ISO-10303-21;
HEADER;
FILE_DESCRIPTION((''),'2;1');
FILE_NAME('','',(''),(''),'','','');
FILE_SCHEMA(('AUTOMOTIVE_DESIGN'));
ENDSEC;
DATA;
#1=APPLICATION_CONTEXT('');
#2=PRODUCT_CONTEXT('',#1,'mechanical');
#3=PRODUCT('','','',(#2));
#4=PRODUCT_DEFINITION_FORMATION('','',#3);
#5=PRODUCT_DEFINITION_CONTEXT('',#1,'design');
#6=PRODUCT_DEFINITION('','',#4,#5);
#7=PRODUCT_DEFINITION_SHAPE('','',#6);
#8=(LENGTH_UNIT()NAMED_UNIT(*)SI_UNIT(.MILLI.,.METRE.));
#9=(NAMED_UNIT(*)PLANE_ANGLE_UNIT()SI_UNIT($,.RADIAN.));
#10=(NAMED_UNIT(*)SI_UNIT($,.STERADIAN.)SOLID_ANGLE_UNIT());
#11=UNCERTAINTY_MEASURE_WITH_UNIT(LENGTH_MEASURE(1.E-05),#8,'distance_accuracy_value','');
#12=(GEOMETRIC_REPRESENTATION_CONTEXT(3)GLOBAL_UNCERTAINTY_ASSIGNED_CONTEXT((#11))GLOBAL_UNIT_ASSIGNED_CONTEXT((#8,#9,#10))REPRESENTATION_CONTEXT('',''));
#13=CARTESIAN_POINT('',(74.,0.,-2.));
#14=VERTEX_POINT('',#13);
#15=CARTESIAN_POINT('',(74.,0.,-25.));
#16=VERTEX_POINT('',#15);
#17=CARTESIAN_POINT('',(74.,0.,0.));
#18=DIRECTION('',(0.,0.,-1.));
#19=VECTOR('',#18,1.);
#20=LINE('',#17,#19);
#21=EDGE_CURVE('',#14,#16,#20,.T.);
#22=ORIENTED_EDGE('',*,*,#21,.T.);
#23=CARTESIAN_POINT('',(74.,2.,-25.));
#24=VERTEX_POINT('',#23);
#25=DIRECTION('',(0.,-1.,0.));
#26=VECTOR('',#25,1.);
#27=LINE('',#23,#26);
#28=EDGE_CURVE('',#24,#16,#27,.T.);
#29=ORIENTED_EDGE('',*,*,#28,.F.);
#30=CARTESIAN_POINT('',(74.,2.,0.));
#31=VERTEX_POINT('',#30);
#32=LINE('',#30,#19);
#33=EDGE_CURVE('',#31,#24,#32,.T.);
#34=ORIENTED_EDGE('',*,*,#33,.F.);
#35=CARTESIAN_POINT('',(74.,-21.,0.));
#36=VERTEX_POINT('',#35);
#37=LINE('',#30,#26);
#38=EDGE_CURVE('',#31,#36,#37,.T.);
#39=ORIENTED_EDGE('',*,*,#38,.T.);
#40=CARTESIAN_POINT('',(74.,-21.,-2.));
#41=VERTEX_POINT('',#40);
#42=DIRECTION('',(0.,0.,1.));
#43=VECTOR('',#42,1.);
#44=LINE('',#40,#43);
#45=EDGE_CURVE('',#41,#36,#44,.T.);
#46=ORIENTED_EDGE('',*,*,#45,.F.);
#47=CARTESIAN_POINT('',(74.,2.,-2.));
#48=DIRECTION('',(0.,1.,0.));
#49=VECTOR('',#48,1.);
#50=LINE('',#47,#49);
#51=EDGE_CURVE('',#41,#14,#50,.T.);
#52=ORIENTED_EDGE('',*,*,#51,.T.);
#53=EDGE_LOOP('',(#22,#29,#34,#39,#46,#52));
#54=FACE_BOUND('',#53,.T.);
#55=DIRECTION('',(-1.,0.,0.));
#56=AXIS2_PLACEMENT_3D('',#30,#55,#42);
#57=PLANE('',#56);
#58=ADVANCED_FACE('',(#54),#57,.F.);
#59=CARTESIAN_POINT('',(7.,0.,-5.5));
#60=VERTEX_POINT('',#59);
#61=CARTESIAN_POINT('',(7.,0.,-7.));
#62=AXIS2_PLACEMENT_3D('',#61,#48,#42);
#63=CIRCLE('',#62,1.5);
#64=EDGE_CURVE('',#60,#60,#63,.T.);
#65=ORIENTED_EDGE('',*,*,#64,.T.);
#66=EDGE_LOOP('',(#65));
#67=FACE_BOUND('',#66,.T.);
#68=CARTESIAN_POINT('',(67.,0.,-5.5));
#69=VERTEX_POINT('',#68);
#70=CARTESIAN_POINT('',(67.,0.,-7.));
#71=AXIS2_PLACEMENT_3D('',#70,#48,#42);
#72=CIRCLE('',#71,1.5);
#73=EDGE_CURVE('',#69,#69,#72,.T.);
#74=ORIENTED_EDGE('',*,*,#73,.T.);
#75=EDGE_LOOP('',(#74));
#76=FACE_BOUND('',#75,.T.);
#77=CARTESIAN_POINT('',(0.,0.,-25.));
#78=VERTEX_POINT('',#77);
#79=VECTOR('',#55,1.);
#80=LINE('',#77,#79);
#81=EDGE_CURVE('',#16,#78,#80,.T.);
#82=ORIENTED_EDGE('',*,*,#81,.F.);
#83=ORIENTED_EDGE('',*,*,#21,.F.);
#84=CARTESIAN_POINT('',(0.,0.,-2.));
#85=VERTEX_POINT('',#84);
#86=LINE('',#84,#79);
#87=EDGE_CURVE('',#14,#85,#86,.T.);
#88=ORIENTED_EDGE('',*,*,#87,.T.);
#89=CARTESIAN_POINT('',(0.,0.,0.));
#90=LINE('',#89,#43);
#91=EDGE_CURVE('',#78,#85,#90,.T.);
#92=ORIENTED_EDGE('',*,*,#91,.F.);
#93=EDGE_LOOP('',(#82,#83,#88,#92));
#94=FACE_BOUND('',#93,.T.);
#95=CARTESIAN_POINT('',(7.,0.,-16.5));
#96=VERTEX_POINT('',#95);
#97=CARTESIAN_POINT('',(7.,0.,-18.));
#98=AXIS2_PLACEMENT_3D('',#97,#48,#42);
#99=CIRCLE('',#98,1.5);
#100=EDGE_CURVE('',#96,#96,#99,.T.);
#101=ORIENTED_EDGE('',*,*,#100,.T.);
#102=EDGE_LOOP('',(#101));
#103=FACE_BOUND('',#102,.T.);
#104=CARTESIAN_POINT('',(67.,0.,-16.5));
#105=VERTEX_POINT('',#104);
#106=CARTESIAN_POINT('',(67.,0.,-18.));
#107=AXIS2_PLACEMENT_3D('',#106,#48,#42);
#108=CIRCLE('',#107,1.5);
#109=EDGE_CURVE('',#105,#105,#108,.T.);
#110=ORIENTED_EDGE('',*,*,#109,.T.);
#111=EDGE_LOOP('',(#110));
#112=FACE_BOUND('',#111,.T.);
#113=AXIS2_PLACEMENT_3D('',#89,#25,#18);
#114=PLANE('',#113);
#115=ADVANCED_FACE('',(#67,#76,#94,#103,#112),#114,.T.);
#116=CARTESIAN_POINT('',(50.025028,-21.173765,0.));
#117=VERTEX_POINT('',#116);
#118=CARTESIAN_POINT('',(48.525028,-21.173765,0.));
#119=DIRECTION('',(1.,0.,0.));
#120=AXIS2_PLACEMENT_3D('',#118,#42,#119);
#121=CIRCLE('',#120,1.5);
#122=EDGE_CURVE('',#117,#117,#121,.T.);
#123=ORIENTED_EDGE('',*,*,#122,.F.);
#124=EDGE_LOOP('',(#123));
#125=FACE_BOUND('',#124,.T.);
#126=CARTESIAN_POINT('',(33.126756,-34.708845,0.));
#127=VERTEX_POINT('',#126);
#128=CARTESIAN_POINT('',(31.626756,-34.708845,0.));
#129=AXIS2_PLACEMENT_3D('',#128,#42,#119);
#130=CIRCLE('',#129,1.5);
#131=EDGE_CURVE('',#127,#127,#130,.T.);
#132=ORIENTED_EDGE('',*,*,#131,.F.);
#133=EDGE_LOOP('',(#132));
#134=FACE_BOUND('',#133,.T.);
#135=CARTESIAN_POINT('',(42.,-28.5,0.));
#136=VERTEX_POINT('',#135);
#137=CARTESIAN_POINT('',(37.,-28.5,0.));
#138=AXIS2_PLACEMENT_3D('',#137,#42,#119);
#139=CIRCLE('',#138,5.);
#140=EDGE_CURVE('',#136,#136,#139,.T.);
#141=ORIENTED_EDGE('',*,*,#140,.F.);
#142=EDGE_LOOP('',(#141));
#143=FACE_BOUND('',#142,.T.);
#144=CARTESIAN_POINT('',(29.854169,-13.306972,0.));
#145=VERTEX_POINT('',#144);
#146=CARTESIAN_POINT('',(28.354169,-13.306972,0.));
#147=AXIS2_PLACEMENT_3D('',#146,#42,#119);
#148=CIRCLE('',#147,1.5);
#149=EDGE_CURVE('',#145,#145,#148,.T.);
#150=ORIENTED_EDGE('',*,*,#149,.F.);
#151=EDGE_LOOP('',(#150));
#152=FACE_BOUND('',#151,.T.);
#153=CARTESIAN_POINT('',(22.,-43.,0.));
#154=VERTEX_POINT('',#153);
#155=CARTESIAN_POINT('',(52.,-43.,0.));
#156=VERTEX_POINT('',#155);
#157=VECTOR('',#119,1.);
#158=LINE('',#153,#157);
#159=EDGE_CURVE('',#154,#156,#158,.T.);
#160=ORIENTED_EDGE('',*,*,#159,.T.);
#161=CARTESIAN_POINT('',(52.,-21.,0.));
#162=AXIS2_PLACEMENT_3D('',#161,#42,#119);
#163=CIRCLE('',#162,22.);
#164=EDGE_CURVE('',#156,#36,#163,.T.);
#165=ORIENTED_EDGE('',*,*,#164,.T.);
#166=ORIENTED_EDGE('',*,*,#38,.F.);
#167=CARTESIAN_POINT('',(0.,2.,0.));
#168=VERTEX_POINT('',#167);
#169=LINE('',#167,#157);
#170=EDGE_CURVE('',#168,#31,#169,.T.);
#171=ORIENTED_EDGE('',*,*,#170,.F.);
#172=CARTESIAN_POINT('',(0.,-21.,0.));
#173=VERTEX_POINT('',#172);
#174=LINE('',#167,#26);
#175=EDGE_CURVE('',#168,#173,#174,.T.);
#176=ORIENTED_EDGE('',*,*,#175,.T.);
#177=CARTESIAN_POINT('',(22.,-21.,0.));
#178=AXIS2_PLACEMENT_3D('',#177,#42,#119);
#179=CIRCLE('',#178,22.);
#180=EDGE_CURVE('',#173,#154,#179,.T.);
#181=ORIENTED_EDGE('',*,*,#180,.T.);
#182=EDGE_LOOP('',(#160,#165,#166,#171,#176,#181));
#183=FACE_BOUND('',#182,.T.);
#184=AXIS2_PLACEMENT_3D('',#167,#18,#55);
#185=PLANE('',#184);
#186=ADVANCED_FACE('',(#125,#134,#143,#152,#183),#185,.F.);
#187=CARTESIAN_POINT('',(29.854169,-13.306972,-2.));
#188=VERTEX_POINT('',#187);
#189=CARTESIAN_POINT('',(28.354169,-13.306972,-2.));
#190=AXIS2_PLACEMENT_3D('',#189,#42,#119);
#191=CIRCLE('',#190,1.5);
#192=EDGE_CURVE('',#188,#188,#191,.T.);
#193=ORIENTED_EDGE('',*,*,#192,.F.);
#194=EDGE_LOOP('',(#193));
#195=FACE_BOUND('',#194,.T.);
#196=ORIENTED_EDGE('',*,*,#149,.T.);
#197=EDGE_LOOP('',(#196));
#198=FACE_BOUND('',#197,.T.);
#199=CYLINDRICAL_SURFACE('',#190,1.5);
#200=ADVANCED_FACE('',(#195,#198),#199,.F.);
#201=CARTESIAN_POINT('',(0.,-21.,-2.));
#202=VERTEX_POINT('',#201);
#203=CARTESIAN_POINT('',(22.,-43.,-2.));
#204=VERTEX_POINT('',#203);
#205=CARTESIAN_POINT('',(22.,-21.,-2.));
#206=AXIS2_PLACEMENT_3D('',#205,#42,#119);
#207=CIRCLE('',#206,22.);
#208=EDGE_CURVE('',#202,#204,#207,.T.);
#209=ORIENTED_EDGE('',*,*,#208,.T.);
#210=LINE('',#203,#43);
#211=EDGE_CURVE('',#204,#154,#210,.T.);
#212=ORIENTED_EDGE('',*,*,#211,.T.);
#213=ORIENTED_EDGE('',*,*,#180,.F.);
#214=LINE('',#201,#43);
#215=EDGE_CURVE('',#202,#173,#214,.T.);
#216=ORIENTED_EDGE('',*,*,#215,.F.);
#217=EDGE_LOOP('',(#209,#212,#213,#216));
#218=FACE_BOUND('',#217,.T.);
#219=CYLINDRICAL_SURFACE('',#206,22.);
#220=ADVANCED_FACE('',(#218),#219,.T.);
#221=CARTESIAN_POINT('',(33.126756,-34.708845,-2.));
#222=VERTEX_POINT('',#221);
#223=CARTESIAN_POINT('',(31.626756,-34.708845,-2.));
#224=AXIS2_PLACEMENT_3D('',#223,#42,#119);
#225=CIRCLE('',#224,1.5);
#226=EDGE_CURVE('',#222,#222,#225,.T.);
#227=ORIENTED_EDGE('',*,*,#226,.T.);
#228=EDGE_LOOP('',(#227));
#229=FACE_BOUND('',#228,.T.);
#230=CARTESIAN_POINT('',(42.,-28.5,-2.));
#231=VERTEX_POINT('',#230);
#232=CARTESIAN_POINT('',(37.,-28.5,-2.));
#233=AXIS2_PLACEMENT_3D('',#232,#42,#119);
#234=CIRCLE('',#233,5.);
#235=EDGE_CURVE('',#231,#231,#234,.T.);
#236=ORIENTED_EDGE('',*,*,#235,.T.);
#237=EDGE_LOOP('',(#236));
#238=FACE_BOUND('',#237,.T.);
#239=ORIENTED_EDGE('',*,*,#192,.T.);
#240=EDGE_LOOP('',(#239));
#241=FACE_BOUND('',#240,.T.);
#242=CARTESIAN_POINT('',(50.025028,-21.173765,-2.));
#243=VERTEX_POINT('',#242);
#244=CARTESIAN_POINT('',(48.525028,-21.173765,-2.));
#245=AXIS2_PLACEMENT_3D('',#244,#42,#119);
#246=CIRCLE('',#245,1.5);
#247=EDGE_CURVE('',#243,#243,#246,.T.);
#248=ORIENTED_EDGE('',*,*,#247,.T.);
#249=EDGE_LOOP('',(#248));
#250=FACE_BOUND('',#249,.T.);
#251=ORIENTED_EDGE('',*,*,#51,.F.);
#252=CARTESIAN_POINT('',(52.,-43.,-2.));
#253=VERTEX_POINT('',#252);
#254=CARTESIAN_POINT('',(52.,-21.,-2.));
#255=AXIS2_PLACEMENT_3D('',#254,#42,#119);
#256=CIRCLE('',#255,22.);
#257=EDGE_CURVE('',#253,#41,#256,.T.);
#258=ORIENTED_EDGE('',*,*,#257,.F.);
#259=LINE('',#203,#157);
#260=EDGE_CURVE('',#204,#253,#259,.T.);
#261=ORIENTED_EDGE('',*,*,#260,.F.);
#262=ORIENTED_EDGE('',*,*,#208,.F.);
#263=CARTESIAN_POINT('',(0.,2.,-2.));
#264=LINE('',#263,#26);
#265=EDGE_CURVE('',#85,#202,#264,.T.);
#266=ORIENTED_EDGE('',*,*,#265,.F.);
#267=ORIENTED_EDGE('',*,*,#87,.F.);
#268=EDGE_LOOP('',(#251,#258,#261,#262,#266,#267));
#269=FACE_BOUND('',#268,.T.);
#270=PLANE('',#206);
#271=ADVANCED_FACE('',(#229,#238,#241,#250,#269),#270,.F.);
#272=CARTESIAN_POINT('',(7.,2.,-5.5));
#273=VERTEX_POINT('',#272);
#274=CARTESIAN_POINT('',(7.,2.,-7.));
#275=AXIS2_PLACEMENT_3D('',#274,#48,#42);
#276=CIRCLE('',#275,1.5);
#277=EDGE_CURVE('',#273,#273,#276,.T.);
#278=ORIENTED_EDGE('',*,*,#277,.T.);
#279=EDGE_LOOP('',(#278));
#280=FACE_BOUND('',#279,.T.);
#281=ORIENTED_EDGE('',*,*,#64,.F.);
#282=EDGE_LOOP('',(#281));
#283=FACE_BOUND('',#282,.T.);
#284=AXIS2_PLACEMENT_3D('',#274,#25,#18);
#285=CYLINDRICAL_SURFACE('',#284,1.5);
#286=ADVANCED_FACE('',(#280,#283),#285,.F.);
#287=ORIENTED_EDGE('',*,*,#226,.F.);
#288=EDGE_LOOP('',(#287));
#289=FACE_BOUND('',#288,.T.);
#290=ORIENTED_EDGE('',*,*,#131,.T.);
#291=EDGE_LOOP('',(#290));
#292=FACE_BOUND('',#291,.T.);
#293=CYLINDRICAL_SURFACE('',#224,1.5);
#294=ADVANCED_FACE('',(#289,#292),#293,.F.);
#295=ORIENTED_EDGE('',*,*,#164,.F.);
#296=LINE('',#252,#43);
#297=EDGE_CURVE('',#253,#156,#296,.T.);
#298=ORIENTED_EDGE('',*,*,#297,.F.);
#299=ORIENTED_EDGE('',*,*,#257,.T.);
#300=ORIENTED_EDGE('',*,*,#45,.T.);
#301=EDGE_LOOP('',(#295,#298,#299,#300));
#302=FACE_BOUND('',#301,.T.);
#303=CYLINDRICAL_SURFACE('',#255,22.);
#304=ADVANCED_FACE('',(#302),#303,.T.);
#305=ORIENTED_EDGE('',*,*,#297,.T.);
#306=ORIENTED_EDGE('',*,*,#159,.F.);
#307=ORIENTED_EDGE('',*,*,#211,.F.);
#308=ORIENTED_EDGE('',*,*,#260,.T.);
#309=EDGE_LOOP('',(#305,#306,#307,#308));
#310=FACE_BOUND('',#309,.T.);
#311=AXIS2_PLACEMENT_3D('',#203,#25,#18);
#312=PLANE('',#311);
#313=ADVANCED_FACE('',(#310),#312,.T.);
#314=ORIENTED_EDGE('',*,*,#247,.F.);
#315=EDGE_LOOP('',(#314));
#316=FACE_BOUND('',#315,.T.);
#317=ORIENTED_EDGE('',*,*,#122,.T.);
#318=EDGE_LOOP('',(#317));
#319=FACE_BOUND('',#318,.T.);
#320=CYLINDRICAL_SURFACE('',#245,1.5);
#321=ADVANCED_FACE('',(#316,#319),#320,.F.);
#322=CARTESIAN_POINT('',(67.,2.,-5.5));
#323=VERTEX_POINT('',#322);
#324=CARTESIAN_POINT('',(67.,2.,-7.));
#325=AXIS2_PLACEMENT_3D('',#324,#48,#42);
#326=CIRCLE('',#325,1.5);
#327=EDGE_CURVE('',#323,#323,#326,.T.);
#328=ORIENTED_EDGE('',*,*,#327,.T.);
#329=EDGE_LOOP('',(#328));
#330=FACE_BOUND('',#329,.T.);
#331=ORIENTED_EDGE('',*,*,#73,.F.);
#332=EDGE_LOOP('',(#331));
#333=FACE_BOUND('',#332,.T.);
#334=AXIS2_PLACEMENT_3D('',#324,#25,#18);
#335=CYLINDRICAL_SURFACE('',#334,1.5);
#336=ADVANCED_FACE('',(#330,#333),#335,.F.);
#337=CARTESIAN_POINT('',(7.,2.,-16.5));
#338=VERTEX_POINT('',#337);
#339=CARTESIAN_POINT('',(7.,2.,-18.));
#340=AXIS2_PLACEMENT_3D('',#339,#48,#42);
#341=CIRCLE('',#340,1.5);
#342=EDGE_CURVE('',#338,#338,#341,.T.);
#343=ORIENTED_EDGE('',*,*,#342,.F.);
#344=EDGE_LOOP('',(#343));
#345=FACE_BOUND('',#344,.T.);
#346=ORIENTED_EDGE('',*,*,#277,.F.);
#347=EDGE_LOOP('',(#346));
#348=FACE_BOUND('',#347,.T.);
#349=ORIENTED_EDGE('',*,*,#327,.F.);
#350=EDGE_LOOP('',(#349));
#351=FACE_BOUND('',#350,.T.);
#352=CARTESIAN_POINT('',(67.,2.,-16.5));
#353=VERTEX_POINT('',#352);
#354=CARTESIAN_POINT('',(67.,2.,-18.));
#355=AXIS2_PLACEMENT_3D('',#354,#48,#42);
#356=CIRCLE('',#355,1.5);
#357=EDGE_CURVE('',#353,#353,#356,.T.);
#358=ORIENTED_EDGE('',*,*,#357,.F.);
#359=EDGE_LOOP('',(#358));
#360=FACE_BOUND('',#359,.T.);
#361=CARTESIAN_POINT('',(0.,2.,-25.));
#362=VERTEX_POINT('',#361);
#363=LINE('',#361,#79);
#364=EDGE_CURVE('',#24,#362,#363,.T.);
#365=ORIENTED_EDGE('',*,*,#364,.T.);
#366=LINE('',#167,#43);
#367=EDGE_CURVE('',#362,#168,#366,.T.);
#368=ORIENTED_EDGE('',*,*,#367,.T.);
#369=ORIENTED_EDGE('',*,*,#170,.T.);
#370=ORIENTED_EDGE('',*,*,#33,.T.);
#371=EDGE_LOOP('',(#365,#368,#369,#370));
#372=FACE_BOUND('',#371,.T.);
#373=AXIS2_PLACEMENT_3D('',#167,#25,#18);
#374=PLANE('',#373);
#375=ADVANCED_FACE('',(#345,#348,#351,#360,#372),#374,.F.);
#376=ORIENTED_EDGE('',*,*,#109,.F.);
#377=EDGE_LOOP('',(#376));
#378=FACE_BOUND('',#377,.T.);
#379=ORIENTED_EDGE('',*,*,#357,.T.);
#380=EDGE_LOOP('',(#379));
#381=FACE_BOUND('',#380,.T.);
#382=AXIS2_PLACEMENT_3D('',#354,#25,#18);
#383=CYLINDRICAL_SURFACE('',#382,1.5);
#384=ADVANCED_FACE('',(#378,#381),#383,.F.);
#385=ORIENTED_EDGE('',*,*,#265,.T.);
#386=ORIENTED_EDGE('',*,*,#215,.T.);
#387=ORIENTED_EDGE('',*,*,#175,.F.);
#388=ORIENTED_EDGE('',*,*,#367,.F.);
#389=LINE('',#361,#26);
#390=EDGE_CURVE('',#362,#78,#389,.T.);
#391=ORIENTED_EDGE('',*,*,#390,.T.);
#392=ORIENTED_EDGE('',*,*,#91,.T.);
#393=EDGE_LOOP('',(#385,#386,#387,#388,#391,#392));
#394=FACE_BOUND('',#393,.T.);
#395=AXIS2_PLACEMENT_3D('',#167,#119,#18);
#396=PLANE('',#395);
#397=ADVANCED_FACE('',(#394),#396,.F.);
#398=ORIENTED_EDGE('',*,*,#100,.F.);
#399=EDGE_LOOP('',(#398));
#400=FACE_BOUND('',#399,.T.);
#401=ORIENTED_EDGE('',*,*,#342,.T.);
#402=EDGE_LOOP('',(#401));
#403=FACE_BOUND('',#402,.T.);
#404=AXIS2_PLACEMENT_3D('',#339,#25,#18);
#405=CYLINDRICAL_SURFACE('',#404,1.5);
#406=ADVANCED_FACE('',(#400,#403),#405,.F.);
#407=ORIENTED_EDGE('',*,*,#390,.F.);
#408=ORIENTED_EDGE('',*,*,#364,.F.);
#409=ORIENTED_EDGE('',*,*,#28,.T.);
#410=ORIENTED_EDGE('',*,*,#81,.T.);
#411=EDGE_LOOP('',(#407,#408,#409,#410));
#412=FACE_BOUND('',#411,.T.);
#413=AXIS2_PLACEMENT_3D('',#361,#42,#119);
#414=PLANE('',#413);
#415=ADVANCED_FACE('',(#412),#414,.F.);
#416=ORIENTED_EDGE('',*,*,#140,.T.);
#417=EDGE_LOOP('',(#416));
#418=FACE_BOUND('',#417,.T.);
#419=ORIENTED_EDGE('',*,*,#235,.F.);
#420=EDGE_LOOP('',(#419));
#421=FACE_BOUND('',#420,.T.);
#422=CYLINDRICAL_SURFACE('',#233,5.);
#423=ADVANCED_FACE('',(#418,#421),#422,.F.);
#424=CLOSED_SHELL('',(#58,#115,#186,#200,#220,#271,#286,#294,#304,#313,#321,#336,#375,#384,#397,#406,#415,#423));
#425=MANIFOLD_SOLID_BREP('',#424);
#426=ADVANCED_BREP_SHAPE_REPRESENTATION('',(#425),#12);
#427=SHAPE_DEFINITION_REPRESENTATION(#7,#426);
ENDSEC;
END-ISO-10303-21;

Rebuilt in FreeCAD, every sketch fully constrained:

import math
import FreeCAD as App
import Part
import Sketcher

V = App.Vector

doc = App.newDocument("Part")
body = doc.addObject("PartDesign::Body", "Body")

# Sketch on XZ plane
sketch1 = body.newObject("Sketcher::SketchObject", "Sketch")
sketch1.AttachmentSupport = (doc.getObject("XZ_Plane"), [""])
sketch1.MapMode = "FlatFace"
sketch1.addGeometry([
    Part.LineSegment(V(0, -25, 0), V(0, 0, 0)),  # 0
    Part.LineSegment(V(0, 0, 0), V(74, 0, 0)),  # 1
    Part.LineSegment(V(74, 0, 0), V(74, -25, 0)),  # 2
    Part.LineSegment(V(74, -25, 0), V(0, -25, 0)),  # 3
    Part.Circle(V(7, -7, 0), V(0, 0, 1), 1.5),  # 4
    Part.Circle(V(67, -7, 0), V(0, 0, 1), 1.5),  # 5
    Part.Circle(V(7, -18, 0), V(0, 0, 1), 1.5),  # 6
    Part.Circle(V(67, -18, 0), V(0, 0, 1), 1.5),  # 7
], False)
sketch1.addConstraint([
    Sketcher.Constraint("Coincident", 0, 2, 1, 1),
    Sketcher.Constraint("Coincident", 1, 2, 2, 1),
    Sketcher.Constraint("Coincident", 2, 2, 3, 1),
    Sketcher.Constraint("Coincident", 3, 2, 0, 1),
    Sketcher.Constraint("Vertical", 0),
    Sketcher.Constraint("Horizontal", 1),
    Sketcher.Constraint("Vertical", 2),
    Sketcher.Constraint("Horizontal", 3),
    Sketcher.Constraint("Coincident", 0, 2, -1, 1),
    Sketcher.Constraint("Equal", 4, 5),
    Sketcher.Constraint("Equal", 5, 6),
    Sketcher.Constraint("Equal", 6, 7),
    Sketcher.Constraint("Horizontal", 4, 3, 5, 3),
    Sketcher.Constraint("Horizontal", 6, 3, 7, 3),
    Sketcher.Constraint("Vertical", 4, 3, 6, 3),
    Sketcher.Constraint("Vertical", 5, 3, 7, 3),
    Sketcher.Constraint("Diameter", 4, 3.0),
    Sketcher.Constraint("DistanceX", 1, 1, 1, 2, 74.0),
    Sketcher.Constraint("DistanceY", 0, 1, 0, 2, 25.0),
    Sketcher.Constraint("DistanceX", -1, 1, 4, 3, 7.0),
    Sketcher.Constraint("DistanceY", 4, 3, -1, 1, 7.0),
    Sketcher.Constraint("DistanceX", -1, 1, 5, 3, 67.0),
    Sketcher.Constraint("DistanceY", 6, 3, -1, 1, 18.0),
])
pad1 = body.newObject("PartDesign::Pad", "Pad")
pad1.Profile = sketch1
pad1.Length = 2
pad1.Reversed = True

# Sketch on XY plane
sketch2 = body.newObject("Sketcher::SketchObject", "Sketch001")
sketch2.AttachmentSupport = (doc.getObject("XY_Plane"), [""])
sketch2.MapMode = "FlatFace"
sketch2.addGeometry([
    Part.LineSegment(V(74, 2, 0), V(0, 2, 0)),  # 0
    Part.LineSegment(V(0, 2, 0), V(0, -21, 0)),  # 1
    Part.ArcOfCircle(Part.Circle(V(22, -21, 0), V(0, 0, 1), 22), math.radians(180), math.radians(270)),  # 2
    Part.LineSegment(V(22, -43, 0), V(52, -43, 0)),  # 3
    Part.ArcOfCircle(Part.Circle(V(52, -21, 0), V(0, 0, 1), 22), math.radians(-90), math.radians(0)),  # 4
    Part.LineSegment(V(74, -21, 0), V(74, 2, 0)),  # 5
    Part.Circle(V(31.6, -34.7, 0), V(0, 0, 1), 1.5),  # 6
    Part.Circle(V(37, -28.5, 0), V(0, 0, 1), 5),  # 7
    Part.Circle(V(48.5, -21.2, 0), V(0, 0, 1), 1.5),  # 8
    Part.Circle(V(28.4, -13.3, 0), V(0, 0, 1), 1.5),  # 9
], False)
sketch2.addConstraint([
    Sketcher.Constraint("Coincident", 0, 2, 1, 1),
    Sketcher.Constraint("Tangent", 1, 2, 2, 1),
    Sketcher.Constraint("Tangent", 2, 2, 3, 1),
    Sketcher.Constraint("Tangent", 3, 2, 4, 1),
    Sketcher.Constraint("Tangent", 4, 2, 5, 1),
    Sketcher.Constraint("Coincident", 5, 2, 0, 1),
    Sketcher.Constraint("Horizontal", 0),
    Sketcher.Constraint("Vertical", 1),
    Sketcher.Constraint("Horizontal", 3),
    Sketcher.Constraint("Vertical", 5),
    Sketcher.Constraint("Equal", 2, 4),
    Sketcher.Constraint("Equal", 6, 8),
    Sketcher.Constraint("Equal", 8, 9),
    Sketcher.Constraint("PointOnObject", 0, 2, -2),
    Sketcher.Constraint("Diameter", 6, 3.0),
    Sketcher.Constraint("Diameter", 7, 10.0),
    Sketcher.Constraint("Radius", 2, 22.0),
    Sketcher.Constraint("DistanceX", 0, 2, 0, 1, 74.0),
    Sketcher.Constraint("DistanceY", 1, 2, 1, 1, 23.0),
    Sketcher.Constraint("DistanceY", 2, 3, -1, 1, 21.0),
    Sketcher.Constraint("DistanceX", -1, 1, 7, 3, 37.0),
    Sketcher.Constraint("DistanceY", 7, 3, -1, 1, 28.5),
    Sketcher.Constraint("DistanceX", -1, 1, 8, 3, 48.525028),
    Sketcher.Constraint("DistanceX", -1, 1, 9, 3, 28.354169),
    Sketcher.Constraint("DistanceX", 6, 3, 8, 3, 16.898272),
    Sketcher.Constraint("DistanceY", 6, 3, 8, 3, 13.535081),
    Sketcher.Constraint("DistanceY", 6, 3, -1, 1, 34.708845),
    Sketcher.Constraint("DistanceY", 9, 3, -1, 1, 13.306972),
])
pad2 = body.newObject("PartDesign::Pad", "Pad001")
pad2.Profile = sketch2
pad2.Length = 2
pad2.Reversed = True

doc.recompute()
